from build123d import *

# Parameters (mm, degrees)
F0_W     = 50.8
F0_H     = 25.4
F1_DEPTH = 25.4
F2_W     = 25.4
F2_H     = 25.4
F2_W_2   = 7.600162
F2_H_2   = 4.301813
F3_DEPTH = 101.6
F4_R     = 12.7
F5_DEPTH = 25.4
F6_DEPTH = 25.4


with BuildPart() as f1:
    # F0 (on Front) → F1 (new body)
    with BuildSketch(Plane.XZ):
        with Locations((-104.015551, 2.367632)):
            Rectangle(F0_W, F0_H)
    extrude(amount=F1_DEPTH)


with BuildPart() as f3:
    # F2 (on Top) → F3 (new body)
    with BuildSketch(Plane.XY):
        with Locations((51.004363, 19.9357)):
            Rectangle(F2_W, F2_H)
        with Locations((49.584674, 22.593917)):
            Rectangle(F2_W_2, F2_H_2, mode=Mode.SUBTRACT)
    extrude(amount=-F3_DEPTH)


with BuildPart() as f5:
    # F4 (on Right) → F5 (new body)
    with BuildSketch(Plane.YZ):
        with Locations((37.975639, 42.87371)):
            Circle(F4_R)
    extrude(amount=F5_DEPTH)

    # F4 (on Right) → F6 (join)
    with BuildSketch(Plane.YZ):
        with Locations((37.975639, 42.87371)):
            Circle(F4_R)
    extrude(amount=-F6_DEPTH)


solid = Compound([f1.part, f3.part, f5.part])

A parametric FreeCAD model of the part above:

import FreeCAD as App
import Part
import Sketcher
from FreeCAD import Vector
Q = App.Units.Quantity


def add_polygon(sketch, points):
    """Adds a closed chain of lines whose ends are joined by coincident constraints."""
    first, n = sketch.GeometryCount, len(points)
    for a, b in zip(points, points[1:] + points[:1]):
        sketch.addGeometry(Part.LineSegment(App.Vector(*a, 0), App.Vector(*b, 0)), False)
    for i in range(n):
        sketch.addConstraint(Sketcher.Constraint("Coincident", first + i, 2, first + (i + 1) % n, 1))

doc = App.newDocument("Part")
body = doc.addObject("PartDesign::Body", "Body")

# Sketch on XZ plane
sketch1 = doc.addObject("Sketcher::SketchObject", "Sketch")
body.addObject(sketch1)
sketch1.AttachmentSupport = (doc.XZ_Plane, [""])
sketch1.MapMode = "FlatFace"
add_polygon(sketch1, [(-129.415551, 15.067632), (-129.415551, -10.332368), (-78.615551, -10.332368), (-78.615551, 15.067632)])  # lines 0-3
sketch1.addConstraint([
    Sketcher.Constraint("Vertical", 0),
    Sketcher.Constraint("Horizontal", 1),
    Sketcher.Constraint("Vertical", 2),
    Sketcher.Constraint("Horizontal", 3),
    Sketcher.Constraint("DistanceX", 1, 1, 1, 2, Q("2 in")),
    Sketcher.Constraint("DistanceY", 0, 2, 0, 1, Q("1 in")),
    Sketcher.Constraint("DistanceX", 0, 2, -1, 1, 129.415551),
    Sketcher.Constraint("DistanceY", 0, 2, -1, 1, 10.332368),
])
pad1 = doc.addObject("PartDesign::Pad", "Pad")
body.addObject(pad1)
pad1.Profile = sketch1
pad1.Length = Q("1 in")
body2 = doc.addObject("PartDesign::Body", "Body001")

# Sketch on XY plane
sketch2 = doc.addObject("Sketcher::SketchObject", "Sketch001")
body2.addObject(sketch2)
sketch2.AttachmentSupport = (doc.getObject("XY_Plane001"), [""])
sketch2.MapMode = "FlatFace"
add_polygon(sketch2, [(38.304363, 32.6357), (38.304363, 7.2357), (63.704363, 7.2357), (63.704363, 32.6357)])  # lines 0-3
add_polygon(sketch2, [(53.384755, 20.44301), (45.784593, 20.44301), (45.784593, 24.744823), (53.384755, 24.744823)])  # lines 4-7
sketch2.addConstraint([
    Sketcher.Constraint("Vertical", 0),
    Sketcher.Constraint("Horizontal", 1),
    Sketcher.Constraint("Vertical", 2),
    Sketcher.Constraint("Horizontal", 3),
    Sketcher.Constraint("Horizontal", 4),
    Sketcher.Constraint("Vertical", 5),
    Sketcher.Constraint("Horizontal", 6),
    Sketcher.Constraint("Vertical", 7),
    Sketcher.Constraint("Equal", 3, 0),
    Sketcher.Constraint("DistanceX", 1, 1, 1, 2, Q("1 in")),
    Sketcher.Constraint("DistanceX", 4, 2, 4, 1, 7.600162),
    Sketcher.Constraint("DistanceY", -1, 1, 0, 2, 7.2357),
    Sketcher.Constraint("DistanceY", 5, 1, 5, 2, 4.301813),
    Sketcher.Constraint("DistanceY", -1, 1, 4, 2, 20.44301),
    Sketcher.Constraint("DistanceX", 3, 2, 4, 2, 7.48023),
    Sketcher.Constraint("DistanceX", -1, 1, 0, 2, 38.304363),
])
pad2 = doc.addObject("PartDesign::Pad", "Pad001")
body2.addObject(pad2)
pad2.Profile = sketch2
pad2.Length = Q("4 in")
pad2.Reversed = True
body3 = doc.addObject("PartDesign::Body", "Body002")

# Sketch on YZ plane
sketch3 = doc.addObject("Sketcher::SketchObject", "Sketch002")
body3.addObject(sketch3)
sketch3.AttachmentSupport = (doc.getObject("YZ_Plane002"), [""])
sketch3.MapMode = "FlatFace"
sketch3.addGeometry(Part.Circle(Vector(37.975639, 42.87371, 0), Vector(0, 0, 1), 12.7), False)
sketch3.addConstraint([
    Sketcher.Constraint("Diameter", 0, Q("1 in")),
    Sketcher.Constraint("DistanceX", -1, 1, 0, 3, 37.975639),
    Sketcher.Constraint("DistanceY", -1, 1, 0, 3, 42.87371),
])
pad3 = doc.addObject("PartDesign::Pad", "Pad002")
body3.addObject(pad3)
pad3.Profile = sketch3
pad3.Length = Q("1 in")

# Sketch on YZ plane
sketch4 = doc.addObject("Sketcher::SketchObject", "Sketch003")
body3.addObject(sketch4)
sketch4.AttachmentSupport = (doc.getObject("YZ_Plane002"), [""])
sketch4.MapMode = "FlatFace"
sketch4.addGeometry(Part.Circle(Vector(37.975639, 42.87371, 0), Vector(0, 0, 1), 12.7), False)
sketch4.addConstraint([
    Sketcher.Constraint("Diameter", 0, Q("1 in")),
    Sketcher.Constraint("DistanceX", -1, 1, 0, 3, 37.975639),
    Sketcher.Constraint("DistanceY", -1, 1, 0, 3, 42.87371),
])
pad4 = doc.addObject("PartDesign::Pad", "Pad003")
body3.addObject(pad4)
pad4.Profile = sketch4
pad4.Length = Q("1 in")
pad4.Reversed = True

doc.recompute()
